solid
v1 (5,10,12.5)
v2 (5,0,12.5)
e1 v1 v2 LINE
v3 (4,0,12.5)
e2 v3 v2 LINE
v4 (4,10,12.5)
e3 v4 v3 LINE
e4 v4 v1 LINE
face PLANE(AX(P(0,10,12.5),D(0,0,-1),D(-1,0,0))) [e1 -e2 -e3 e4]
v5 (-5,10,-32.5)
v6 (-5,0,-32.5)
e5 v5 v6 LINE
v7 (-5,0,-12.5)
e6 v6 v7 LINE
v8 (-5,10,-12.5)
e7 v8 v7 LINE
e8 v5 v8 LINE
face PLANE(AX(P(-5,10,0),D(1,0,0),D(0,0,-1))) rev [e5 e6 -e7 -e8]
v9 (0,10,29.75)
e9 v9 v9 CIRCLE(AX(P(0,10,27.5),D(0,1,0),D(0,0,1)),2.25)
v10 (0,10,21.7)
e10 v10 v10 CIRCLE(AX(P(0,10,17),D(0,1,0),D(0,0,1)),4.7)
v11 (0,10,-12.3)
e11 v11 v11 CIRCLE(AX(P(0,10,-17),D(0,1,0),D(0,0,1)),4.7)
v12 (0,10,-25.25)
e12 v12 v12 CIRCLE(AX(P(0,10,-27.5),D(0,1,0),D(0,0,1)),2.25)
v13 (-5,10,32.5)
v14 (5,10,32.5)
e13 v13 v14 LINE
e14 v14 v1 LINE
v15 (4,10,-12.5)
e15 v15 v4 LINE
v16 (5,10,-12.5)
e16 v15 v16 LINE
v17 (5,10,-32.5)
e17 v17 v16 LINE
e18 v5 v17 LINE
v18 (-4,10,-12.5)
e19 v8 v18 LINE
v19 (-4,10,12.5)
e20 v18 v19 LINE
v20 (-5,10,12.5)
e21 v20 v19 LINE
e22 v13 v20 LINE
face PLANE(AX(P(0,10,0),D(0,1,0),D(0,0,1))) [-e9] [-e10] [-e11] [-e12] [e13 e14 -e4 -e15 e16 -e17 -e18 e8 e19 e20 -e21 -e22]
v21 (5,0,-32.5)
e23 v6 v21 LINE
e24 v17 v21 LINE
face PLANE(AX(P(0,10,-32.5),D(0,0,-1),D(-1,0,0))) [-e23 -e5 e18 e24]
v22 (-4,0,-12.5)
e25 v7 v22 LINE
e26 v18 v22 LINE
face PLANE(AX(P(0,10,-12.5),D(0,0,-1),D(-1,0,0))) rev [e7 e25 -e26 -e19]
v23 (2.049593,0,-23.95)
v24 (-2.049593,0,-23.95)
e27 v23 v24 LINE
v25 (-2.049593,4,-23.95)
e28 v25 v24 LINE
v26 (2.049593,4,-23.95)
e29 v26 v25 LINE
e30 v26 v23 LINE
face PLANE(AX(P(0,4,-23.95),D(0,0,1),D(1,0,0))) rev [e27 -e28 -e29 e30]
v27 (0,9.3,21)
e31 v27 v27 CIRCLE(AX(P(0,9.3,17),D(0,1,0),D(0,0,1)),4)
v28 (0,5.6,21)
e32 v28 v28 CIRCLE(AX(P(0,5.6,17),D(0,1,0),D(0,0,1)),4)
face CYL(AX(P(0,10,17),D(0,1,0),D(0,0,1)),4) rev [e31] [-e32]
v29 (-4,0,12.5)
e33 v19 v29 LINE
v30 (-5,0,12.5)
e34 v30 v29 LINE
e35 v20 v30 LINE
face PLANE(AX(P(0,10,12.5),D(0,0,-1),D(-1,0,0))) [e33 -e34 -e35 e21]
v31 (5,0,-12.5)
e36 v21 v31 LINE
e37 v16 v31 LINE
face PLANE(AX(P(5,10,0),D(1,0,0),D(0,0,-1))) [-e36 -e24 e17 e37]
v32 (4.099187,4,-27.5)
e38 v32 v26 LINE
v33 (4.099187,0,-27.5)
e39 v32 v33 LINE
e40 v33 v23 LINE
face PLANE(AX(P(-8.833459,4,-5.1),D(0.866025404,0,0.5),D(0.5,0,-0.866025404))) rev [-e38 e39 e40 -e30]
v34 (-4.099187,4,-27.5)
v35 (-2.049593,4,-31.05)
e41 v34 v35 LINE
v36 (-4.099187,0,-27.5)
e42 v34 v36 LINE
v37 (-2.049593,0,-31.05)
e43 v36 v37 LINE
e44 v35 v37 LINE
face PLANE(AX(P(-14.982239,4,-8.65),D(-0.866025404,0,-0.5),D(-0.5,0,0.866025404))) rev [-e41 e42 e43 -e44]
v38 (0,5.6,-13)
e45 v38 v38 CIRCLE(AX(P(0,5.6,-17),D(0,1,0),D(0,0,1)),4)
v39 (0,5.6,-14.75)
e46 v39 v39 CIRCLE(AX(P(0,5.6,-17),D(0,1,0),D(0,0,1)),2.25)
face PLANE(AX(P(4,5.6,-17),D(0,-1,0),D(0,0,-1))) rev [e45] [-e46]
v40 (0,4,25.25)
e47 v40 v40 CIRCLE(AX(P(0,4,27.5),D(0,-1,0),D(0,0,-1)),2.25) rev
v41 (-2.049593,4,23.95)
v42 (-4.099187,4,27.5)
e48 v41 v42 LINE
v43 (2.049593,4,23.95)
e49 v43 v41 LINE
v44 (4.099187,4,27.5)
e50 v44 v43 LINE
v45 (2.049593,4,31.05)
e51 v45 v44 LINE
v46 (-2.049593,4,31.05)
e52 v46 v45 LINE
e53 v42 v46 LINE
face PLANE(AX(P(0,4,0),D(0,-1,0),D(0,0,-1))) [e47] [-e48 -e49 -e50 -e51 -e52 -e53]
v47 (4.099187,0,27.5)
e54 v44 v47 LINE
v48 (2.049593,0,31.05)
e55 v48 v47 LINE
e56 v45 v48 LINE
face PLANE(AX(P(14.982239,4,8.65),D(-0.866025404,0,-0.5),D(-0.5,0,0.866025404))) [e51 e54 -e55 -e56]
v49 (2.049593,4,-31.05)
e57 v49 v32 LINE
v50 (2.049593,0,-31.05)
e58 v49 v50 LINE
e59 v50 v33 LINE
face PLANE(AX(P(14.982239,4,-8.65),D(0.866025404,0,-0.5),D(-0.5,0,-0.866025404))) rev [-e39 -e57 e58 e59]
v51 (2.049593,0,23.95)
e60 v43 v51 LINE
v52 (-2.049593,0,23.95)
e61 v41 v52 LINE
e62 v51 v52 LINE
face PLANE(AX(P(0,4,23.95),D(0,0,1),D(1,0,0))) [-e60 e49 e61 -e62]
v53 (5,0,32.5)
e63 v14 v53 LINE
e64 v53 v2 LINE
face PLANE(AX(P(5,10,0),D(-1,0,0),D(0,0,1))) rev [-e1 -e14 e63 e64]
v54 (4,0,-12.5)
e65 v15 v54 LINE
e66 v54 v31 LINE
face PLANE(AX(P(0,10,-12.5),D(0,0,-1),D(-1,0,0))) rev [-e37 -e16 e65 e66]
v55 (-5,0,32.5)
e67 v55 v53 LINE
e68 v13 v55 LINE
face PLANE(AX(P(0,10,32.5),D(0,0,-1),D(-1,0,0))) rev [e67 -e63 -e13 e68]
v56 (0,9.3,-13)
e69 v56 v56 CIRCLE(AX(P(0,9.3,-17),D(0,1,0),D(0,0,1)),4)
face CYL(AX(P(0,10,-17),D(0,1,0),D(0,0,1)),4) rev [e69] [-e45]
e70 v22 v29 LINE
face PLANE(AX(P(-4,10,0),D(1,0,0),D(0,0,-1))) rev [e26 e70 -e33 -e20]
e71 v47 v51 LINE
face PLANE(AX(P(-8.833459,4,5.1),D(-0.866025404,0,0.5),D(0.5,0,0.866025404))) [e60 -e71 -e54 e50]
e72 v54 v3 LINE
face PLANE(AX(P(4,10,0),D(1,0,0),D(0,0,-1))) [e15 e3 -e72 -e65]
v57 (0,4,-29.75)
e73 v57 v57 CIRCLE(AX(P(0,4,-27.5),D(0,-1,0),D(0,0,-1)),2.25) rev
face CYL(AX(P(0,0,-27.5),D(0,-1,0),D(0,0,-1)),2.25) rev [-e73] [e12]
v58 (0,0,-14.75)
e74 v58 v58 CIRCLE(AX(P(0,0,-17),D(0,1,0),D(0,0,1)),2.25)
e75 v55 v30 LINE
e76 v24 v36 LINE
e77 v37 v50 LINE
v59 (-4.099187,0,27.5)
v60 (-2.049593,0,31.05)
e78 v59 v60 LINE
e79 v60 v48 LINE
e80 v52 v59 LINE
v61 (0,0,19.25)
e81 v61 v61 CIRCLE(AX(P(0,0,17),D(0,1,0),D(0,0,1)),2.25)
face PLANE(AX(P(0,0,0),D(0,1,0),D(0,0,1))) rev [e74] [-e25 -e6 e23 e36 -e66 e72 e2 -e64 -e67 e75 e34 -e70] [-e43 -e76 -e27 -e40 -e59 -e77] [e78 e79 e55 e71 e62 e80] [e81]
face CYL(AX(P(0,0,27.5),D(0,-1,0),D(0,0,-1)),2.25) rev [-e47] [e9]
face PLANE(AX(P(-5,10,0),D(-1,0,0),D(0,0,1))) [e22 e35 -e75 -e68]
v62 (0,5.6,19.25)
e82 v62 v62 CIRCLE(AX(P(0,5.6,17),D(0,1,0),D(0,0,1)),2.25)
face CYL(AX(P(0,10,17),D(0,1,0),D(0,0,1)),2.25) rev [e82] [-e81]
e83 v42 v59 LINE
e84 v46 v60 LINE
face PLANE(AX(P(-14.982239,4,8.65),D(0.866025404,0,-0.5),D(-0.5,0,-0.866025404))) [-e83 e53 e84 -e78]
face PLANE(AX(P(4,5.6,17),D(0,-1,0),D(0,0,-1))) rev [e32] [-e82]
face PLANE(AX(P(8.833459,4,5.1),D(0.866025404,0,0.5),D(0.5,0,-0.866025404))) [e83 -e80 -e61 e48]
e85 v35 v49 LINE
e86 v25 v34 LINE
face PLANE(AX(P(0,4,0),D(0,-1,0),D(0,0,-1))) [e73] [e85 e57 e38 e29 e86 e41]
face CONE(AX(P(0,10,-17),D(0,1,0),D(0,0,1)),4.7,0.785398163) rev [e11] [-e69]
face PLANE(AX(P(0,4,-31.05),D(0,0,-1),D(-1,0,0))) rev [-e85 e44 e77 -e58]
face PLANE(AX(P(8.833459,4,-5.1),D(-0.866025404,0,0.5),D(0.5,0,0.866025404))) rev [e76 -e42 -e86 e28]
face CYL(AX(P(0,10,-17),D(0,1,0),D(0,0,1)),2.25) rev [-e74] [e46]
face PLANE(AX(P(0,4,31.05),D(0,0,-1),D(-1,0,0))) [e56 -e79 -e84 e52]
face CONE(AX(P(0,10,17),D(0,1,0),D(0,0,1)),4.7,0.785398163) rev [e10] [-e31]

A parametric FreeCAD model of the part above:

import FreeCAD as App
import Part
import Sketcher

V = App.Vector
Q = App.Units.Quantity


def add_polygon(sketch, points):
    """Adds a closed chain of lines whose ends are joined by coincident constraints."""
    first, n = sketch.GeometryCount, len(points)
    for a, b in zip(points, points[1:] + points[:1]):
        sketch.addGeometry(Part.LineSegment(App.Vector(*a, 0), App.Vector(*b, 0)), False)
    for i in range(n):
        sketch.addConstraint(Sketcher.Constraint("Coincident", first + i, 2, first + (i + 1) % n, 1))

doc = App.newDocument("Part")
body = doc.addObject("PartDesign::Body", "Body")

sketch1 = body.newObject("Sketcher::SketchObject", "Sketch")
sketch1.AttachmentSupport = (doc.getObject("XZ_Plane"), [""])
sketch1.MapMode = "FlatFace"
add_polygon(sketch1, [(-5, -32.5), (-5, -12.5), (-4, -12.5), (-4, 12.5), (-5, 12.5), (-5, 32.5), (5, 32.5), (5, 12.5), (4, 12.5), (4, -12.5), (5, -12.5), (5, -32.5)])
sketch1.addConstraint(Sketcher.Constraint("Vertical", 0))
sketch1.addConstraint(Sketcher.Constraint("Horizontal", 1))
sketch1.addConstraint(Sketcher.Constraint("Vertical", 2))
sketch1.addConstraint(Sketcher.Constraint("Horizontal", 3))
sketch1.addConstraint(Sketcher.Constraint("Vertical", 4))
sketch1.addConstraint(Sketcher.Constraint("Horizontal", 5))
sketch1.addConstraint(Sketcher.Constraint("Vertical", 6))
sketch1.addConstraint(Sketcher.Constraint("Horizontal", 7))
sketch1.addConstraint(Sketcher.Constraint("Vertical", 8))
sketch1.addConstraint(Sketcher.Constraint("Horizontal", 9))
sketch1.addConstraint(Sketcher.Constraint("Vertical", 10))
sketch1.addConstraint(Sketcher.Constraint("Horizontal", 11))
sketch1.addConstraint(Sketcher.Constraint("Symmetric", 0, 2, 6, 2, -1, 1))
sketch1.addConstraint(Sketcher.Constraint("Symmetric", 2, 2, 8, 2, -1, 1))
sketch1.addConstraint(Sketcher.Constraint("Symmetric", 4, 2, 10, 2, -1, 1))
sketch1.addConstraint(Sketcher.Constraint("Symmetric", 3, 2, 6, 2, -2))
sketch1.addConstraint(Sketcher.Constraint("DistanceX", 1, 1, 1, 2, 1.0))
sketch1.addConstraint(Sketcher.Constraint("DistanceX", 5, 1, 5, 2, 10.0))
sketch1.addConstraint(Sketcher.Constraint("DistanceY", 0, 1, 0, 2, 20.0))
sketch1.addConstraint(Sketcher.Constraint("DistanceY", 2, 1, 2, 2, 25.0))
pad1 = body.newObject("PartDesign::Pad", "Pad")
pad1.Profile = sketch1
pad1.Length = 10
pad1.Reversed = True

sketch2 = body.newObject("Sketcher::SketchObject", "Sketch001")
sketch2.AttachmentSupport = (doc.getObject("YZ_Plane"), [""])
sketch2.MapMode = "FlatFace"
add_polygon(sketch2, [(0, -17), (10, -17), (10, -12.3), (9.3, -13), (5.6, -13), (5.6, -14.75), (0, -14.75)])
sketch2.addGeometry(Part.LineSegment(V(10, -17, 0), V(0, -17, 0)), True)
sketch2.addConstraint(Sketcher.Constraint("Horizontal", 0))
sketch2.addConstraint(Sketcher.Constraint("Vertical", 1))
sketch2.addConstraint(Sketcher.Constraint("Horizontal", 3))
sketch2.addConstraint(Sketcher.Constraint("Vertical", 4))
sketch2.addConstraint(Sketcher.Constraint("Horizontal", 5))
sketch2.addConstraint(Sketcher.Constraint("Vertical", 6))
sketch2.addConstraint(Sketcher.Constraint("Horizontal", 7))
sketch2.addConstraint(Sketcher.Constraint("Coincident", 7, 1, 0, 2))
sketch2.addConstraint(Sketcher.Constraint("PointOnObject", 5, 2, -2))
sketch2.addConstraint(Sketcher.Constraint("PointOnObject", 7, 2, -2))
sketch2.addConstraint(Sketcher.Constraint("DistanceX", 0, 1, 0, 2, 10.0))
sketch2.addConstraint(Sketcher.Constraint("Angle", 2, Q("-135 deg")))
sketch2.addConstraint(Sketcher.Constraint("DistanceX", 3, 2, 3, 1, 3.7))
sketch2.addConstraint(Sketcher.Constraint("DistanceX", 5, 2, 5, 1, 5.6))
sketch2.addConstraint(Sketcher.Constraint("DistanceY", 1, 1, 1, 2, 4.7))
sketch2.addConstraint(Sketcher.Constraint("DistanceY", 0, 2, -1, 1, 17.0))
sketch2.addConstraint(Sketcher.Constraint("DistanceY", 4, 2, 4, 1, 1.75))
groove = body.newObject("PartDesign::Groove", "Groove")
groove.Profile = sketch2
groove.ReferenceAxis = (sketch2, ["Axis0"])
groove.Angle = 360
doc.recompute()

linearpattern = body.newObject("PartDesign::LinearPattern", "LinearPattern")
linearpattern.Originals = [groove]
linearpattern.Direction = (doc.getObject("Z_Axis"), [""])
linearpattern.Mode = "offset"
linearpattern.Offset = 34
linearpattern.Occurrences = 2
body.Tip = linearpattern

sketch3 = body.newObject("Sketcher::SketchObject", "Sketch002")
sketch3.AttachmentSupport = (doc.getObject("XZ_Plane"), [""])
sketch3.MapMode = "FlatFace"
sketch3.addGeometry(Part.Circle(V(0, 27.5, 0), V(0, 0, 1), 2.25), False)
sketch3.addGeometry(Part.Circle(V(0, -27.5, 0), V(0, 0, 1), 2.25), False)
sketch3.addGeometry(Part.Circle(V(-54.108399, 109.420812, 0), V(0, 0, 1), 2.25), False)
sketch3.addConstraint(Sketcher.Constraint("Equal", 0, 1))
sketch3.addConstraint(Sketcher.Constraint("Equal", 1, 2))
sketch3.addConstraint(Sketcher.Constraint("Symmetric", 0, 3, 1, 3, -1, 1))
sketch3.addConstraint(Sketcher.Constraint("PointOnObject", 0, 3, -2))
sketch3.addConstraint(Sketcher.Constraint("Diameter", 0, 4.5))
sketch3.addConstraint(Sketcher.Constraint("DistanceY", 1, 3, 0, 3, 55.0))
sketch3.addConstraint(Sketcher.Constraint("DistanceX", 2, 3, -1, 1, 54.108399))
sketch3.addConstraint(Sketcher.Constraint("DistanceY", -1, 1, 2, 3, 109.420812))
doc.recompute()
hole = body.newObject("PartDesign::Hole", "Hole")
hole.Profile = sketch3
hole.ThreadType = "None"
hole.Diameter = 4.5
hole.DepthType = "Dimension"
hole.Depth = 10
hole.DrillPoint = "Flat"

sketch4 = body.newObject("Sketcher::SketchObject", "Sketch003")
sketch4.AttachmentSupport = (doc.getObject("XZ_Plane"), [""])
sketch4.MapMode = "FlatFace"
add_polygon(sketch4, [(2.049593, -31.05), (4.099187, -27.5), (2.049593, -23.95), (-2.049593, -23.95), (-4.099187, -27.5), (-2.049593, -31.05)])
sketch4.addGeometry(Part.Circle(V(0, -27.5, 0), V(0, 0, 1), 2.25), False)
add_polygon(sketch4, [(-2.049593, 23.95), (2.049593, 23.95), (4.099187, 27.5), (2.049593, 31.05), (-2.049593, 31.05), (-4.099187, 27.5)])
sketch4.addGeometry(Part.Circle(V(0, 27.5, 0), V(0, 0, 1), 2.25), False)
sketch4.addConstraint(Sketcher.Constraint("Horizontal", 2))
sketch4.addConstraint(Sketcher.Constraint("Horizontal", 5))
sketch4.addConstraint(Sketcher.Constraint("Horizontal", 7))
sketch4.addConstraint(Sketcher.Constraint("Horizontal", 10))
sketch4.addConstraint(Sketcher.Constraint("Equal", 6, 13))
sketch4.addConstraint(Sketcher.Constraint("Symmetric", 6, 3, 13, 3, -1, 1))
sketch4.addConstraint(Sketcher.Constraint("Symmetric", 2, 2, 7, 2, -1, 1))
sketch4.addConstraint(Sketcher.Constraint("Symmetric", 3, 2, 8, 2, -1, 1))
sketch4.addConstraint(Sketcher.Constraint("Symmetric", 4, 2, 9, 2, -1, 1))
sketch4.addConstraint(Sketcher.Constraint("Symmetric", 0, 2, 11, 2, -1, 1))
sketch4.addConstraint(Sketcher.Constraint("Symmetric", 0, 2, 3, 2, -2))
sketch4.addConstraint(Sketcher.Constraint("PointOnObject", 6, 3, -2))
sketch4.addConstraint(Sketcher.Constraint("Parallel", 0, 3))
sketch4.addConstraint(Sketcher.Constraint("Parallel", 1, 4))
sketch4.addConstraint(Sketcher.Constraint("Parallel", 8, 11))
sketch4.addConstraint(Sketcher.Constraint("Parallel", 9, 12))
sketch4.addConstraint(Sketcher.Constraint("Horizontal", 6, 3, 0, 2))
sketch4.addConstraint(Sketcher.Constraint("Vertical", 2, 2, 4, 2))
sketch4.addConstraint(Sketcher.Constraint("Vertical", 1, 2, 5, 2))
sketch4.addConstraint(Sketcher.Constraint("Diameter", 6, 4.5))
sketch4.addConstraint(Sketcher.Constraint("Angle", 0, Q("60 deg")))
sketch4.addConstraint(Sketcher.Constraint("DistanceY", 6, 3, 13, 3, 55.0))
sketch4.addConstraint(Sketcher.Constraint("DistanceY", 4, 2, 2, 2, 7.1))
sketch4.addConstraint(Sketcher.Constraint("DistanceX", 2, 2, 2, 1, 4.099187))
pocket1 = body.newObject("PartDesign::Pocket", "Pocket")
pocket1.Profile = sketch4
pocket1.Length = 4

doc.recompute()
